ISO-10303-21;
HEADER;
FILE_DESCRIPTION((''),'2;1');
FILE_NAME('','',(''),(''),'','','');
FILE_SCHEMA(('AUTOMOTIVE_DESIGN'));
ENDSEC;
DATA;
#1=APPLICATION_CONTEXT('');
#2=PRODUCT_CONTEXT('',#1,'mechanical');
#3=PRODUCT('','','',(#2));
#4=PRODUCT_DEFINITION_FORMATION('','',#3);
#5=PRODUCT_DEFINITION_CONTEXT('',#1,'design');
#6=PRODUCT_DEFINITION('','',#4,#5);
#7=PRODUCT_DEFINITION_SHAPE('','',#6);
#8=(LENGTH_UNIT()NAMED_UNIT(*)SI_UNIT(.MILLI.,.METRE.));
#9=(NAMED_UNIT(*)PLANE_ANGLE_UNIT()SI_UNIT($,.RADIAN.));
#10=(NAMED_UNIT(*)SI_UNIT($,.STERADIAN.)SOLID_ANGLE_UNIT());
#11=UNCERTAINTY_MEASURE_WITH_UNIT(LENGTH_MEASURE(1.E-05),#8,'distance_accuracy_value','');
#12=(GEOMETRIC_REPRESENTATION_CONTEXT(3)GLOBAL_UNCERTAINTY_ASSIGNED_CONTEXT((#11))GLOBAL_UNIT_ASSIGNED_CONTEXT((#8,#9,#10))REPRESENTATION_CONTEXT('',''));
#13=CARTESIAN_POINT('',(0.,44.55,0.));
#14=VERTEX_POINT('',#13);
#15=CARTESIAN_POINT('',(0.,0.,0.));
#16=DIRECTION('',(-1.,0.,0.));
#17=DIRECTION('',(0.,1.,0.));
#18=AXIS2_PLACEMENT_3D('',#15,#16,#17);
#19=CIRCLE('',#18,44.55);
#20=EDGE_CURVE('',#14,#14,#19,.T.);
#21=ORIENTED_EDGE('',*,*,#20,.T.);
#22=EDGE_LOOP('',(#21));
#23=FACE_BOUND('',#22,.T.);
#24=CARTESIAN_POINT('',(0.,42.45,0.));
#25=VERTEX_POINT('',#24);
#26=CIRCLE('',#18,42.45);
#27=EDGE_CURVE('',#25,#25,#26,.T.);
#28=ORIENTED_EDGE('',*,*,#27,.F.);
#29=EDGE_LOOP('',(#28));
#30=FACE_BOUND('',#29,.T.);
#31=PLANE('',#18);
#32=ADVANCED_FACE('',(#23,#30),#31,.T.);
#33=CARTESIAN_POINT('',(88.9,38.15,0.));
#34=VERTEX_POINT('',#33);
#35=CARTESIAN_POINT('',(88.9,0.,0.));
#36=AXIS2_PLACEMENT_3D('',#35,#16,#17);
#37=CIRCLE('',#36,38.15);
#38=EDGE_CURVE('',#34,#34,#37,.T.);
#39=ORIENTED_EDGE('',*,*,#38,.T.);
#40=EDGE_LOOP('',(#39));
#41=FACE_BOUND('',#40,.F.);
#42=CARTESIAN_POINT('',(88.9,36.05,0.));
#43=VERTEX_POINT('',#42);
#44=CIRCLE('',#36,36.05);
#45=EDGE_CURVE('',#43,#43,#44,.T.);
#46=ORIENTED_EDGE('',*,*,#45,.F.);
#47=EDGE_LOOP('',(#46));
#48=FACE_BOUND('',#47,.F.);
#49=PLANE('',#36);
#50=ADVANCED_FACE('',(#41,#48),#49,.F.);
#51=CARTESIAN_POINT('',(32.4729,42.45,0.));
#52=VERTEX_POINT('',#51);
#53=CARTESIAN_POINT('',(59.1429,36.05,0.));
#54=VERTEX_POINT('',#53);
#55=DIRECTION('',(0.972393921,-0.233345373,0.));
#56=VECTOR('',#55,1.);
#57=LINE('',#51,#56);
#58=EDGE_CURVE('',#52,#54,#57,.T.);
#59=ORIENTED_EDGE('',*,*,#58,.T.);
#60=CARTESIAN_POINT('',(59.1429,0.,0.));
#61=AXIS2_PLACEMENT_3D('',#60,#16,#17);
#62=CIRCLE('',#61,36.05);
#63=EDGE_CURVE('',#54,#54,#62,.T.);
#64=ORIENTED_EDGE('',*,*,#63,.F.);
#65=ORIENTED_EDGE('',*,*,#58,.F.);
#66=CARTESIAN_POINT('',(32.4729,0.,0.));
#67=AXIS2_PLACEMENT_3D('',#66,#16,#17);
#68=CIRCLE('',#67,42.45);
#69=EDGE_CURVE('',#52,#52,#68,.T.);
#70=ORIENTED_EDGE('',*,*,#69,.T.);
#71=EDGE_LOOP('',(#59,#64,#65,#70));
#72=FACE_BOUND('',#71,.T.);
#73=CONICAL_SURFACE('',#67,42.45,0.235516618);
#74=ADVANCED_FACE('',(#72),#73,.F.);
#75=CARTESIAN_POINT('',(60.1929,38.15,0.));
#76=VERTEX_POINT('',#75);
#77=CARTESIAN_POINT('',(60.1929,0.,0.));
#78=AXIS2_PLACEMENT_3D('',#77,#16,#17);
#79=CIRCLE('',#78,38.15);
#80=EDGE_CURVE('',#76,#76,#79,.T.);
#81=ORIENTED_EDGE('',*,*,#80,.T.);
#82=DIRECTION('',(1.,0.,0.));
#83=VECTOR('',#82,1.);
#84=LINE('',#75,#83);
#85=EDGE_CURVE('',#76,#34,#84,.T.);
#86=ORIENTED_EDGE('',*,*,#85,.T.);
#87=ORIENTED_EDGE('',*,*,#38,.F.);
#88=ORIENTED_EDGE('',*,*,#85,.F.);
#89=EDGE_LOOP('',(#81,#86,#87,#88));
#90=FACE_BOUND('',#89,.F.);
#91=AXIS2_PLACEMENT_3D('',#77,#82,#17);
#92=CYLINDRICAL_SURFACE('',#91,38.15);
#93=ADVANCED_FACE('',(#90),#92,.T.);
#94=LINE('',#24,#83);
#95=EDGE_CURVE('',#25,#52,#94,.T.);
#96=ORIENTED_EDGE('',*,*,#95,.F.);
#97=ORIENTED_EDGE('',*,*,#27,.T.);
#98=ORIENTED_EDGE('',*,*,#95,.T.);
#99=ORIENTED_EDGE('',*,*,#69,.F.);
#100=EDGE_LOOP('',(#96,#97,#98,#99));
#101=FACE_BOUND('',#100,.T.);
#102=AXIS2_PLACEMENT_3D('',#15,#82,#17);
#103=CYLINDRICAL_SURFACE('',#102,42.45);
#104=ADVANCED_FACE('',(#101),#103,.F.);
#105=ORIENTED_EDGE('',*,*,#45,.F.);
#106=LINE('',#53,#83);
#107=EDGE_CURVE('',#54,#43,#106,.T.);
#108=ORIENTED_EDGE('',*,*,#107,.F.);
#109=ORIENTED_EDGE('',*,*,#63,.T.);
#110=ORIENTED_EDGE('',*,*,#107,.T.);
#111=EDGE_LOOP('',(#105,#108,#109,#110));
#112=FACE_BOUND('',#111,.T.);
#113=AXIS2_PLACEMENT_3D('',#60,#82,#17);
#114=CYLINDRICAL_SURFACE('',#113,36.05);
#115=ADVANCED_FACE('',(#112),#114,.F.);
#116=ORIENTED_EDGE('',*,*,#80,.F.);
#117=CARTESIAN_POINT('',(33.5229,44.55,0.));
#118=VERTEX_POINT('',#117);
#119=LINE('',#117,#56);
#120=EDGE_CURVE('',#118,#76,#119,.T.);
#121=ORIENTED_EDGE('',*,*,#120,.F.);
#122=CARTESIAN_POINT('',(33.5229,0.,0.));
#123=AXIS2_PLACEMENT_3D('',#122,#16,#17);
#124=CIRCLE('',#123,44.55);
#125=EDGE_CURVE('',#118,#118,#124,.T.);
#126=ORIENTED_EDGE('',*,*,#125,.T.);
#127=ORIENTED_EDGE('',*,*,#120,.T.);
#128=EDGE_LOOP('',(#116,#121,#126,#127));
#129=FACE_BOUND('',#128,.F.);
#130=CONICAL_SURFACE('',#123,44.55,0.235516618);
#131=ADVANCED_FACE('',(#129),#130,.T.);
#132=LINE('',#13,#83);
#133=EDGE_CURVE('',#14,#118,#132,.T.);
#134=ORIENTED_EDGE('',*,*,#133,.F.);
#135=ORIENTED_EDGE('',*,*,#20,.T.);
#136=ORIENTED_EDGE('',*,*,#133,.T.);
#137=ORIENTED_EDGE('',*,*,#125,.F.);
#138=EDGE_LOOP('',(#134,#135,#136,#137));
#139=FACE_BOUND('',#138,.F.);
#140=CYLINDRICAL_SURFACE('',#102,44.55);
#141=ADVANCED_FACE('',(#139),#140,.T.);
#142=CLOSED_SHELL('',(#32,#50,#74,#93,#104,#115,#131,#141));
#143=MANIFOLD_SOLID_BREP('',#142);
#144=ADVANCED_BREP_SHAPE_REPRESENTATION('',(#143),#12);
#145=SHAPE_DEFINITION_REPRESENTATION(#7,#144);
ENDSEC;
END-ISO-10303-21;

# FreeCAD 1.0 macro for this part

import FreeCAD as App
import Part
import Sketcher
from FreeCAD import Vector


def add_polygon(sketch, points):
    """Adds a closed chain of lines whose ends are joined by coincident constraints."""
    first, n = sketch.GeometryCount, len(points)
    for a, b in zip(points, points[1:] + points[:1]):
        sketch.addGeometry(Part.LineSegment(App.Vector(*a, 0), App.Vector(*b, 0)), False)
    for i in range(n):
        sketch.addConstraint(Sketcher.Constraint("Coincident", first + i, 2, first + (i + 1) % n, 1))

doc = App.newDocument("Part")
body = doc.addObject("PartDesign::Body", "Body")

# Sketch on XY plane
sketch1 = body.newObject("Sketcher::SketchObject", "Sketch")
sketch1.AttachmentSupport = (doc.getObject("XY_Plane"), [""])
sketch1.MapMode = "FlatFace"
add_polygon(sketch1, [(33.5, 44.5), (0, 44.5), (0, 42.5), (32.5, 42.5), (59.1, 36), (88.9, 36), (88.9, 38.1), (60.2, 38.1)])  # lines 0-7
sketch1.addConstraint([
    Sketcher.Constraint("Horizontal", 0),
    Sketcher.Constraint("Vertical", 1),
    Sketcher.Constraint("Horizontal", 2),
    Sketcher.Constraint("Horizontal", 4),
    Sketcher.Constraint("Vertical", 5),
    Sketcher.Constraint("Horizontal", 6),
    Sketcher.Constraint("PointOnObject", 0, 2, -2),
    Sketcher.Constraint("Parallel", 3, 7),
    Sketcher.Constraint("Equal", 1, 5),
    Sketcher.Constraint("DistanceY", 1, 2, 1, 1, 2.1),
    Sketcher.Constraint("DistanceX", -1, 1, 4, 2, 88.9),
    Sketcher.Constraint("DistanceX", 0, 2, 0, 1, 33.523),
    Sketcher.Constraint("DistanceX", 2, 1, 2, 2, 32.473),
    Sketcher.Constraint("DistanceX", 2, 2, 3, 2, 26.67),
    Sketcher.Constraint("DistanceY", 3, 2, 2, 2, 6.4),
    Sketcher.Constraint("DistanceY", -1, 1, 0, 2, 44.55),
])
revolution = body.newObject("PartDesign::Revolution", "Revolution")
revolution.Profile = sketch1
revolution.ReferenceAxis = (sketch1, ["H_Axis"])
revolution.Angle = 360

doc.recompute()
